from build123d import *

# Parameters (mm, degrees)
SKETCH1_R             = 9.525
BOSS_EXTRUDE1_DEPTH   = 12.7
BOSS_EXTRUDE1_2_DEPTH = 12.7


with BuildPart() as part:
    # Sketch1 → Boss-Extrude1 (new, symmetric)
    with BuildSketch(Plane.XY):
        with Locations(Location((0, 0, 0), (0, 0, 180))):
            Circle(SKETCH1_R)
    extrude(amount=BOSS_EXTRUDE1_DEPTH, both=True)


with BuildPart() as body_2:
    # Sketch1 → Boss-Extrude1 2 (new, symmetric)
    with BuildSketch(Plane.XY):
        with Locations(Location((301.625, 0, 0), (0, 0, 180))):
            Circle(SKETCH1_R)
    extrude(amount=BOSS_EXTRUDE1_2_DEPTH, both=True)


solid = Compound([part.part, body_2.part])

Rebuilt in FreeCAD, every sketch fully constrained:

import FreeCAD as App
import Part
import Sketcher
Q = App.Units.Quantity

doc = App.newDocument("Part")
body = doc.addObject("PartDesign::Body", "Body")

sketch1 = doc.addObject("Sketcher::SketchObject", "Sketch")
body.addObject(sketch1)
sketch1.AttachmentSupport = (doc.XY_Plane, [""])
sketch1.MapMode = "FlatFace"
sketch1.addGeometry(Part.Circle(App.Vector(0, 0, 0), App.Vector(0, 0, 1), 10), False)
sketch1.addConstraint([
    Sketcher.Constraint("Coincident", 0, 3, -1, 1),
    Sketcher.Constraint("Diameter", 0, Q("0.75 in")),
])
pad1 = doc.addObject("PartDesign::Pad", "Pad")
body.addObject(pad1)
pad1.Profile = sketch1
pad1.Length = Q("1 in")
pad1.Midplane = True
body2 = doc.addObject("PartDesign::Body", "Body001")

sketch2 = doc.addObject("Sketcher::SketchObject", "Sketch001")
body2.addObject(sketch2)
sketch2.AttachmentSupport = (doc.getObject("XY_Plane001"), [""])
sketch2.MapMode = "FlatFace"
sketch2.addGeometry(Part.Circle(App.Vector(302, 0, 0), App.Vector(0, 0, 1), 10), False)
sketch2.addConstraint([
    Sketcher.Constraint("PointOnObject", 0, 3, -1),
    Sketcher.Constraint("Diameter", 0, Q("0.75 in")),
    Sketcher.Constraint("DistanceX", -1, 1, 0, 3, Q("11.875 in")),
])
pad2 = doc.addObject("PartDesign::Pad", "Pad001")
body2.addObject(pad2)
pad2.Profile = sketch2
pad2.Length = Q("1 in")
pad2.Midplane = True

doc.recompute()
